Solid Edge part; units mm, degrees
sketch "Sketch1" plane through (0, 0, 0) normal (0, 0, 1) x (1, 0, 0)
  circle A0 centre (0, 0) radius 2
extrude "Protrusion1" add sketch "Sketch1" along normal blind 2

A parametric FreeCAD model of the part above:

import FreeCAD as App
import Part
import Sketcher
Q = App.Units.Quantity

doc = App.newDocument("Part")
body = doc.addObject("PartDesign::Body", "Body")

# Sketch on XY plane
sketch1 = body.newObject("Sketcher::SketchObject", "Sketch")
sketch1.AttachmentSupport = (doc.getObject("XY_Plane"), [""])
sketch1.MapMode = "FlatFace"
sketch1.addGeometry(Part.Circle(App.Vector(0, 0, 0), App.Vector(0, 0, 1), 2), False)
sketch1.addConstraint([
    Sketcher.Constraint("Coincident", 0, 3, -1, 1),
    Sketcher.Constraint("Diameter", 0, Q("4 mm")),
])
pad1 = body.newObject("PartDesign::Pad", "Pad")
pad1.Profile = sketch1
pad1.Length = 2

doc.recompute()
